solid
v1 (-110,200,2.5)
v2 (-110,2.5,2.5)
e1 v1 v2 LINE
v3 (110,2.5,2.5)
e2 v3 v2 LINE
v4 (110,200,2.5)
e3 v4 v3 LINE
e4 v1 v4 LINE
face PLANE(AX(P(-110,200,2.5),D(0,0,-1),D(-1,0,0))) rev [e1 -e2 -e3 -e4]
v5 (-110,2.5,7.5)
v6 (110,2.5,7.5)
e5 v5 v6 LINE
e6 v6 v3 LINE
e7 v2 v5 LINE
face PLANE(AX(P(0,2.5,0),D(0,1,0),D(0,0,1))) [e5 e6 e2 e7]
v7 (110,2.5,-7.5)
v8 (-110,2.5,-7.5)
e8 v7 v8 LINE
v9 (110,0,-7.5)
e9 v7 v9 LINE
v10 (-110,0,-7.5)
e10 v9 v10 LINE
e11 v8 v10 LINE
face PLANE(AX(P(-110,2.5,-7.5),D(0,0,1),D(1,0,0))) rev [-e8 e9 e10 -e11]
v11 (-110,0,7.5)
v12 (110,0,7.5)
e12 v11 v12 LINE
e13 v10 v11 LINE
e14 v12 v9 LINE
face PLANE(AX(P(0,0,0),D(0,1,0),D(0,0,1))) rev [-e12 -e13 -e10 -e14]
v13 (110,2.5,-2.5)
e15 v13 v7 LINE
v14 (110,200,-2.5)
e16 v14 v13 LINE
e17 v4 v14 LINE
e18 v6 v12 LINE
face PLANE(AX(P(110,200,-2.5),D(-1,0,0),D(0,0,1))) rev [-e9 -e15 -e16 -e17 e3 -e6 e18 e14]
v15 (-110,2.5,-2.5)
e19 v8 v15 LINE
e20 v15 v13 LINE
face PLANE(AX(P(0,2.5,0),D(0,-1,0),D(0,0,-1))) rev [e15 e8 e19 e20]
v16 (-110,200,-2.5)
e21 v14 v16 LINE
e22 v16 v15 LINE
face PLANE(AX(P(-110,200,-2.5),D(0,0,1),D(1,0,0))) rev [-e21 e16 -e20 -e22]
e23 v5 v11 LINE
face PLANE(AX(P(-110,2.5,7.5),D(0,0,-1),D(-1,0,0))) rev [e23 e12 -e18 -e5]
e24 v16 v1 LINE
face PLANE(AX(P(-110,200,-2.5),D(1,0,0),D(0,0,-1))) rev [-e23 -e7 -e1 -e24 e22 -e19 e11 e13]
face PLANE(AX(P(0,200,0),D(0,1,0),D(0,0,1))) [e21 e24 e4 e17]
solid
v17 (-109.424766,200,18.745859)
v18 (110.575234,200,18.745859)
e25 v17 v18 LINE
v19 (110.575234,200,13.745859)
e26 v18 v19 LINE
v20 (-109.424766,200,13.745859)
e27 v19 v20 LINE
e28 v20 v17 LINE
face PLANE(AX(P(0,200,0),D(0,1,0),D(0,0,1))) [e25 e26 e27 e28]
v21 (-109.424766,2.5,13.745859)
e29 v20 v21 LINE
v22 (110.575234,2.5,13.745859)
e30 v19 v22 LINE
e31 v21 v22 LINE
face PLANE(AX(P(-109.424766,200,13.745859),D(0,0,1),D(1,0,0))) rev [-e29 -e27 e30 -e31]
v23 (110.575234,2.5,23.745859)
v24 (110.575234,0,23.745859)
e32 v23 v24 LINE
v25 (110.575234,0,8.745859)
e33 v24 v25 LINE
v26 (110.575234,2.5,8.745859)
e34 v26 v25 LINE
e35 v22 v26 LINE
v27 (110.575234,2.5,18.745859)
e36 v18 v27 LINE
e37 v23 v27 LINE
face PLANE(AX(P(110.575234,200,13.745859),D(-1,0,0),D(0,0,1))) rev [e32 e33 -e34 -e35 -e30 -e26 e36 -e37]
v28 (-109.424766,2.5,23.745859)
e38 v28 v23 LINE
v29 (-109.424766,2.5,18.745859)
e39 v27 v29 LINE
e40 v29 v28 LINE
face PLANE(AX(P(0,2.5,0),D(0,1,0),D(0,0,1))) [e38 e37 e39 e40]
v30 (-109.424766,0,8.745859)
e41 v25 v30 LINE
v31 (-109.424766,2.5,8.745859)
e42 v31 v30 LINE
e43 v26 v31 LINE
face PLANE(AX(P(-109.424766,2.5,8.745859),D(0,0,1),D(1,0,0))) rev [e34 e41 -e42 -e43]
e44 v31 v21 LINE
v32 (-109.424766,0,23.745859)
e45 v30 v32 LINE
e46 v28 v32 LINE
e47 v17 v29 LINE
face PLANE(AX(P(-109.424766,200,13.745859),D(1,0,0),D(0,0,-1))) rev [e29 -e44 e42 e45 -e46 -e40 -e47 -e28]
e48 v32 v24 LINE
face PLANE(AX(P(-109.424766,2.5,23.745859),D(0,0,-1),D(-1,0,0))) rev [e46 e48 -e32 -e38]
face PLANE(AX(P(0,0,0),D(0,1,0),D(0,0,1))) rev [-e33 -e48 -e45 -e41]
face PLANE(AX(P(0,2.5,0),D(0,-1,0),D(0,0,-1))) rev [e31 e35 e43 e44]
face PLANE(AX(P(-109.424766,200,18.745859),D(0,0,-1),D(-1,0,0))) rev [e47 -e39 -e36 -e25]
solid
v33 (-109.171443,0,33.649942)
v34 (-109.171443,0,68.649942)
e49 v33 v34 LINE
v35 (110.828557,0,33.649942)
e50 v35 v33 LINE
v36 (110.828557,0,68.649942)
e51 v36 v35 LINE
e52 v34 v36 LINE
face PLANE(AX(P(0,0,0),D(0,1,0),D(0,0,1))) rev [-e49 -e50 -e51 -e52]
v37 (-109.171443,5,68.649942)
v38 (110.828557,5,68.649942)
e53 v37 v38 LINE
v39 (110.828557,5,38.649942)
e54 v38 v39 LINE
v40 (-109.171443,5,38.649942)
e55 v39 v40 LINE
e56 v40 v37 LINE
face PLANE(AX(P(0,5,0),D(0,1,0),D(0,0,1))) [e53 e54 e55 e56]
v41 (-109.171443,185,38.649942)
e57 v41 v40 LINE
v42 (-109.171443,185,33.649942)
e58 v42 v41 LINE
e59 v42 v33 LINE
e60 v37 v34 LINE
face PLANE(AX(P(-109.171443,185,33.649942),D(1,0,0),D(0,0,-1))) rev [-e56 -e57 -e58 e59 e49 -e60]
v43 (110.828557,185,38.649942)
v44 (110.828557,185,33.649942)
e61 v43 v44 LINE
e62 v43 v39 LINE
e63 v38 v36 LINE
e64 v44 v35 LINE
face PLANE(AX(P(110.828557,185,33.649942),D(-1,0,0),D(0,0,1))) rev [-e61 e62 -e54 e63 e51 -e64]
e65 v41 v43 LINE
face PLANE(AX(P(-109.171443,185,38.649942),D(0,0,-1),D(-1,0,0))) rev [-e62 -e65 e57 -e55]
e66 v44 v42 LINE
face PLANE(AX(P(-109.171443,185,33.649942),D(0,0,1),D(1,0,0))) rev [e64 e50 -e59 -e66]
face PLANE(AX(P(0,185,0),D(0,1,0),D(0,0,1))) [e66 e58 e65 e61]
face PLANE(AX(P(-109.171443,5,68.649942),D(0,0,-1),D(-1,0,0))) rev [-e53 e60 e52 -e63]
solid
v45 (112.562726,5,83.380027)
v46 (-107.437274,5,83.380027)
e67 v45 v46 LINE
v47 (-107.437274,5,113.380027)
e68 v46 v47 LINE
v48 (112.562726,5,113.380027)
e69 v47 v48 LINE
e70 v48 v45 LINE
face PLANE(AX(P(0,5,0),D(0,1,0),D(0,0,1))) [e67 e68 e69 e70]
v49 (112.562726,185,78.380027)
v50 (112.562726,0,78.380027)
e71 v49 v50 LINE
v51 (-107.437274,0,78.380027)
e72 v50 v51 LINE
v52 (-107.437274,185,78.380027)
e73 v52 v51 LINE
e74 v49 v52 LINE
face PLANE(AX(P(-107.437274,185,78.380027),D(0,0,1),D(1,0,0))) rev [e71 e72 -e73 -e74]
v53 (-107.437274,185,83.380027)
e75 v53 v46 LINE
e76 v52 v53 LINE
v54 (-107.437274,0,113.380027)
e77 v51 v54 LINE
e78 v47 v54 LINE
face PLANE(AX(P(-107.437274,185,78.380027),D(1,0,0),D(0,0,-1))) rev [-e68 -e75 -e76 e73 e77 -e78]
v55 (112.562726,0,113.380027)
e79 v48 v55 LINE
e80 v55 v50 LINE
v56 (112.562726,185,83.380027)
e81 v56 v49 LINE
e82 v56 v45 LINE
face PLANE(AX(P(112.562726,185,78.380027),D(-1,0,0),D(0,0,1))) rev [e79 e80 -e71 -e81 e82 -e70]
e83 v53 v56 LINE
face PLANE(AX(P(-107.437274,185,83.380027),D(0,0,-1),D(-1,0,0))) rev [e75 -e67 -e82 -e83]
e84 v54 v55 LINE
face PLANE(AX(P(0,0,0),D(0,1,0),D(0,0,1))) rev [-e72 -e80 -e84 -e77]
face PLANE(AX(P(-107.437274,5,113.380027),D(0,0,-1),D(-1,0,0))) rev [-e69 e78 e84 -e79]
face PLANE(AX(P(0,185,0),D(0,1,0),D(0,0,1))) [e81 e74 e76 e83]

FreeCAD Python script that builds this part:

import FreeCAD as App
import Part
import Sketcher
from FreeCAD import Vector
Q = App.Units.Quantity

doc = App.newDocument("Part")
body = doc.addObject("PartDesign::Body", "Body")

# Sketch on XZ plane
sketch1 = body.newObject("Sketcher::SketchObject", "Sketch")
sketch1.AttachmentSupport = (doc.getObject("XZ_Plane"), [""])
sketch1.MapMode = "FlatFace"
sketch1.addGeometry([
    Part.LineSegment(Vector(-110, -2, 0), Vector(-110, 2, 0)),
    Part.LineSegment(Vector(-110, 2, 0), Vector(110, 2, 0)),
    Part.LineSegment(Vector(110, 2, 0), Vector(110, -2, 0)),
    Part.LineSegment(Vector(110, -2, 0), Vector(-110, -2, 0)),
], False)
sketch1.addConstraint([
    Sketcher.Constraint("Coincident", 0, 2, 1, 1),
    Sketcher.Constraint("Coincident", 1, 2, 2, 1),
    Sketcher.Constraint("Coincident", 2, 2, 3, 1),
    Sketcher.Constraint("Coincident", 3, 2, 0, 1),
    Sketcher.Constraint("Vertical", 0),
    Sketcher.Constraint("Horizontal", 1),
    Sketcher.Constraint("Vertical", 2),
    Sketcher.Constraint("Horizontal", 3),
    Sketcher.Constraint("Symmetric", 0, 2, 2, 2, -1, 1),
    Sketcher.Constraint("DistanceX", 1, 1, 1, 2, Q("220 mm")),
    Sketcher.Constraint("DistanceY", 0, 1, 0, 2, Q("5 mm")),
])
pad1 = body.newObject("PartDesign::Pad", "Pad")
pad1.Profile = sketch1
pad1.Length = 200
pad1.Reversed = True
body2 = doc.addObject("PartDesign::Body", "Body001")

# Sketch on XZ plane
sketch2 = body2.newObject("Sketcher::SketchObject", "Sketch001")
sketch2.AttachmentSupport = (doc.getObject("XZ_Plane001"), [""])
sketch2.MapMode = "FlatFace"
sketch2.addGeometry([
    Part.LineSegment(Vector(-109.4, 13.7, 0), Vector(-109.4, 18.7, 0)),
    Part.LineSegment(Vector(-109.4, 18.7, 0), Vector(110.6, 18.7, 0)),
    Part.LineSegment(Vector(110.6, 18.7, 0), Vector(110.6, 13.7, 0)),
    Part.LineSegment(Vector(110.6, 13.7, 0), Vector(-109.4, 13.7, 0)),
], False)
sketch2.addConstraint([
    Sketcher.Constraint("Coincident", 0, 2, 1, 1),
    Sketcher.Constraint("Coincident", 1, 2, 2, 1),
    Sketcher.Constraint("Coincident", 2, 2, 3, 1),
    Sketcher.Constraint("Coincident", 3, 2, 0, 1),
    Sketcher.Constraint("Vertical", 0),
    Sketcher.Constraint("Horizontal", 1),
    Sketcher.Constraint("Vertical", 2),
    Sketcher.Constraint("Horizontal", 3),
    Sketcher.Constraint("DistanceX", 1, 1, 1, 2, Q("220 mm")),
    Sketcher.Constraint("DistanceY", 0, 1, 0, 2, Q("5 mm")),
    Sketcher.Constraint("DistanceY", -1, 1, 0, 2, Q("18.745859 mm")),
    Sketcher.Constraint("DistanceX", 0, 2, -1, 1, Q("109.424766 mm")),
])
pad2 = body2.newObject("PartDesign::Pad", "Pad001")
pad2.Profile = sketch2
pad2.Length = 200
pad2.Reversed = True
body3 = doc.addObject("PartDesign::Body", "Body002")

# Sketch on XZ plane
sketch3 = body3.newObject("Sketcher::SketchObject", "Sketch002")
sketch3.AttachmentSupport = (doc.getObject("XZ_Plane002"), [""])
sketch3.MapMode = "FlatFace"
sketch3.addGeometry([
    Part.LineSegment(Vector(-109, 34, 0), Vector(-109, 39, 0)),
    Part.LineSegment(Vector(-109, 39, 0), Vector(111, 39, 0)),
    Part.LineSegment(Vector(111, 39, 0), Vector(111, 34, 0)),
    Part.LineSegment(Vector(111, 34, 0), Vector(-109, 34, 0)),
], False)
sketch3.addConstraint([
    Sketcher.Constraint("Coincident", 0, 2, 1, 1),
    Sketcher.Constraint("Coincident", 1, 2, 2, 1),
    Sketcher.Constraint("Coincident", 2, 2, 3, 1),
    Sketcher.Constraint("Coincident", 3, 2, 0, 1),
    Sketcher.Constraint("Vertical", 0),
    Sketcher.Constraint("Horizontal", 1),
    Sketcher.Constraint("Vertical", 2),
    Sketcher.Constraint("Horizontal", 3),
    Sketcher.Constraint("DistanceX", 1, 1, 1, 2, Q("220 mm")),
    Sketcher.Constraint("DistanceY", 0, 1, 0, 2, Q("5 mm")),
    Sketcher.Constraint("DistanceY", -1, 1, 0, 2, Q("38.649942 mm")),
    Sketcher.Constraint("DistanceX", 0, 2, -1, 1, Q("109.171443 mm")),
])
pad3 = body3.newObject("PartDesign::Pad", "Pad002")
pad3.Profile = sketch3
pad3.Length = 185
pad3.Reversed = True
body4 = doc.addObject("PartDesign::Body", "Body003")

# Sketch on XZ plane
sketch4 = body4.newObject("Sketcher::SketchObject", "Sketch003")
sketch4.AttachmentSupport = (doc.getObject("XZ_Plane003"), [""])
sketch4.MapMode = "FlatFace"
sketch4.addGeometry([
    Part.LineSegment(Vector(-107, 78, 0), Vector(-107, 83, 0)),
    Part.LineSegment(Vector(-107, 83, 0), Vector(113, 83, 0)),
    Part.LineSegment(Vector(113, 83, 0), Vector(113, 78, 0)),
    Part.LineSegment(Vector(113, 78, 0), Vector(-107, 78, 0)),
], False)
sketch4.addConstraint([
    Sketcher.Constraint("Coincident", 0, 2, 1, 1),
    Sketcher.Constraint("Coincident", 1, 2, 2, 1),
    Sketcher.Constraint("Coincident", 2, 2, 3, 1),
    Sketcher.Constraint("Coincident", 3, 2, 0, 1),
    Sketcher.Constraint("Vertical", 0),
    Sketcher.Constraint("Horizontal", 1),
    Sketcher.Constraint("Vertical", 2),
    Sketcher.Constraint("Horizontal", 3),
    Sketcher.Constraint("DistanceX", 1, 1, 1, 2, Q("220 mm")),
    Sketcher.Constraint("DistanceY", 0, 1, 0, 2, Q("5 mm")),
    Sketcher.Constraint("DistanceX", 0, 2, -1, 1, Q("107.437274 mm")),
    Sketcher.Constraint("DistanceY", -1, 1, 0, 2, Q("83.380027 mm")),
])
pad4 = body4.newObject("PartDesign::Pad", "Pad003")
pad4.Profile = sketch4
pad4.Length = 185
pad4.Reversed = True
body3.AllowCompound = True
doc.recompute()

boolean = body3.newObject("PartDesign::Boolean", "Boolean")
boolean.Type = "Fuse"
boolean.addObjects([body4])

# Sketch on XZ plane
sketch5 = body3.newObject("Sketcher::SketchObject", "Sketch004")
sketch5.AttachmentSupport = (doc.getObject("XZ_Plane002"), [""])
sketch5.MapMode = "FlatFace"
sketch5.addGeometry([
    Part.LineSegment(Vector(-109, 39, 0), Vector(-109, 69, 0)),  # 0
    Part.LineSegment(Vector(-109, 69, 0), Vector(111, 69, 0)),  # 1
    Part.LineSegment(Vector(111, 69, 0), Vector(111, 39, 0)),  # 2
    Part.LineSegment(Vector(111, 39, 0), Vector(-109, 39, 0)),  # 3
    Part.LineSegment(Vector(-107, 83, 0), Vector(-107, 113, 0)),  # 4
    Part.LineSegment(Vector(-107, 113, 0), Vector(113, 113, 0)),  # 5
    Part.LineSegment(Vector(113, 113, 0), Vector(113, 83, 0)),  # 6
    Part.LineSegment(Vector(113, 83, 0), Vector(-107, 83, 0)),  # 7
], False)
sketch5.addConstraint([
    Sketcher.Constraint("Coincident", 0, 2, 1, 1),
    Sketcher.Constraint("Coincident", 1, 2, 2, 1),
    Sketcher.Constraint("Coincident", 2, 2, 3, 1),
    Sketcher.Constraint("Coincident", 3, 2, 0, 1),
    Sketcher.Constraint("Coincident", 4, 2, 5, 1),
    Sketcher.Constraint("Coincident", 5, 2, 6, 1),
    Sketcher.Constraint("Coincident", 6, 2, 7, 1),
    Sketcher.Constraint("Coincident", 7, 2, 4, 1),
    Sketcher.Constraint("Vertical", 0),
    Sketcher.Constraint("Horizontal", 1),
    Sketcher.Constraint("Vertical", 2),
    Sketcher.Constraint("Horizontal", 3),
    Sketcher.Constraint("Vertical", 4),
    Sketcher.Constraint("Horizontal", 5),
    Sketcher.Constraint("Vertical", 6),
    Sketcher.Constraint("Horizontal", 7),
    Sketcher.Constraint("Equal", 3, 5),
    Sketcher.Constraint("Equal", 2, 4),
    Sketcher.Constraint("DistanceX", 1, 1, 1, 2, Q("220 mm")),
    Sketcher.Constraint("DistanceY", 0, 1, 0, 2, Q("30 mm")),
    Sketcher.Constraint("DistanceY", -1, 1, 0, 2, Q("68.649942 mm")),
    Sketcher.Constraint("DistanceX", 0, 2, 4, 2, Q("1.734169 mm")),
    Sketcher.Constraint("DistanceX", 0, 2, -1, 1, Q("109.171443 mm")),
    Sketcher.Constraint("DistanceY", -1, 1, 4, 2, Q("113.380027 mm")),
])
pad5 = body3.newObject("PartDesign::Pad", "Pad004")
pad5.Profile = sketch5
pad5.Length = 5
pad5.Reversed = True
body.AllowCompound = True
doc.recompute()

boolean2 = body.newObject("PartDesign::Boolean", "Boolean001")
boolean2.Type = "Fuse"
boolean2.addObjects([body2])

# Sketch on XZ plane
sketch6 = body.newObject("Sketcher::SketchObject", "Sketch005")
sketch6.AttachmentSupport = (doc.getObject("XZ_Plane"), [""])
sketch6.MapMode = "FlatFace"
sketch6.addGeometry([
    Part.LineSegment(Vector(-109, 19, 0), Vector(-109, 24, 0)),  # 0
    Part.LineSegment(Vector(-109, 24, 0), Vector(111, 24, 0)),  # 1
    Part.LineSegment(Vector(111, 24, 0), Vector(111, 19, 0)),  # 2
    Part.LineSegment(Vector(111, 19, 0), Vector(-109, 19, 0)),  # 3
    Part.LineSegment(Vector(-109, 9, 0), Vector(-109, 14, 0)),  # 4
    Part.LineSegment(Vector(-109, 14, 0), Vector(111, 14, 0)),  # 5
    Part.LineSegment(Vector(111, 14, 0), Vector(111, 9, 0)),  # 6
    Part.LineSegment(Vector(111, 9, 0), Vector(-109, 9, 0)),  # 7
    Part.LineSegment(Vector(-110, 2, 0), Vector(-110, 8, 0)),  # 8
    Part.LineSegment(Vector(-110, 8, 0), Vector(110, 8, 0)),  # 9
    Part.LineSegment(Vector(110, 8, 0), Vector(110, 2, 0)),  # 10
    Part.LineSegment(Vector(110, 2, 0), Vector(-110, 2, 0)),  # 11
    Part.LineSegment(Vector(-110, -8, 0), Vector(-110, -2, 0)),  # 12
    Part.LineSegment(Vector(-110, -2, 0), Vector(110, -2, 0)),  # 13
    Part.LineSegment(Vector(110, -2, 0), Vector(110, -8, 0)),  # 14
    Part.LineSegment(Vector(110, -8, 0), Vector(-110, -8, 0)),  # 15
], False)
sketch6.addConstraint([
    Sketcher.Constraint("Coincident", 0, 2, 1, 1),
    Sketcher.Constraint("Coincident", 1, 2, 2, 1),
    Sketcher.Constraint("Coincident", 2, 2, 3, 1),
    Sketcher.Constraint("Coincident", 3, 2, 0, 1),
    Sketcher.Constraint("Coincident", 4, 2, 5, 1),
    Sketcher.Constraint("Coincident", 5, 2, 6, 1),
    Sketcher.Constraint("Coincident", 6, 2, 7, 1),
    Sketcher.Constraint("Coincident", 7, 2, 4, 1),
    Sketcher.Constraint("Coincident", 8, 2, 9, 1),
    Sketcher.Constraint("Coincident", 9, 2, 10, 1),
    Sketcher.Constraint("Coincident", 10, 2, 11, 1),
    Sketcher.Constraint("Coincident", 11, 2, 8, 1),
    Sketcher.Constraint("Coincident", 12, 2, 13, 1),
    Sketcher.Constraint("Coincident", 13, 2, 14, 1),
    Sketcher.Constraint("Coincident", 14, 2, 15, 1),
    Sketcher.Constraint("Coincident", 15, 2, 12, 1),
    Sketcher.Constraint("Vertical", 0),
    Sketcher.Constraint("Horizontal", 1),
    Sketcher.Constraint("Vertical", 2),
    Sketcher.Constraint("Horizontal", 3),
    Sketcher.Constraint("Vertical", 4),
    Sketcher.Constraint("Horizontal", 5),
    Sketcher.Constraint("Vertical", 6),
    Sketcher.Constraint("Horizontal", 7),
    Sketcher.Constraint("Vertical", 8),
    Sketcher.Constraint("Horizontal", 9),
    Sketcher.Constraint("Vertical", 10),
    Sketcher.Constraint("Horizontal", 11),
    Sketcher.Constraint("Vertical", 12),
    Sketcher.Constraint("Horizontal", 13),
    Sketcher.Constraint("Vertical", 14),
    Sketcher.Constraint("Horizontal", 15),
    Sketcher.Constraint("Symmetric", 10, 2, 12, 2, -1, 1),
    Sketcher.Constraint("Symmetric", 8, 2, 14, 2, -1, 1),
    Sketcher.Constraint("Vertical", 3, 2, 4, 2),
    Sketcher.Constraint("Vertical", 2, 2, 5, 2),
    Sketcher.Constraint("Vertical", 11, 2, 12, 2),
    Sketcher.Constraint("Equal", 7, 9),
    Sketcher.Constraint("Equal", 2, 4),
    Sketcher.Constraint("Equal", 6, 8),
    Sketcher.Constraint("DistanceX", 1, 1, 1, 2, Q("220 mm")),
    Sketcher.Constraint("DistanceY", 0, 1, 0, 2, Q("5 mm")),
    Sketcher.Constraint("DistanceY", 4, 2, 3, 2, Q("5 mm")),
    Sketcher.Constraint("DistanceY", 12, 2, 11, 2, Q("5 mm")),
    Sketcher.Constraint("DistanceY", -1, 1, 0, 2, Q("23.745859 mm")),
    Sketcher.Constraint("DistanceX", 0, 2, -1, 1, Q("109.424766 mm")),
])
pad6 = body.newObject("PartDesign::Pad", "Pad005")
pad6.Profile = sketch6
pad6.Length = 2.5
pad6.Reversed = True

doc.recompute()
